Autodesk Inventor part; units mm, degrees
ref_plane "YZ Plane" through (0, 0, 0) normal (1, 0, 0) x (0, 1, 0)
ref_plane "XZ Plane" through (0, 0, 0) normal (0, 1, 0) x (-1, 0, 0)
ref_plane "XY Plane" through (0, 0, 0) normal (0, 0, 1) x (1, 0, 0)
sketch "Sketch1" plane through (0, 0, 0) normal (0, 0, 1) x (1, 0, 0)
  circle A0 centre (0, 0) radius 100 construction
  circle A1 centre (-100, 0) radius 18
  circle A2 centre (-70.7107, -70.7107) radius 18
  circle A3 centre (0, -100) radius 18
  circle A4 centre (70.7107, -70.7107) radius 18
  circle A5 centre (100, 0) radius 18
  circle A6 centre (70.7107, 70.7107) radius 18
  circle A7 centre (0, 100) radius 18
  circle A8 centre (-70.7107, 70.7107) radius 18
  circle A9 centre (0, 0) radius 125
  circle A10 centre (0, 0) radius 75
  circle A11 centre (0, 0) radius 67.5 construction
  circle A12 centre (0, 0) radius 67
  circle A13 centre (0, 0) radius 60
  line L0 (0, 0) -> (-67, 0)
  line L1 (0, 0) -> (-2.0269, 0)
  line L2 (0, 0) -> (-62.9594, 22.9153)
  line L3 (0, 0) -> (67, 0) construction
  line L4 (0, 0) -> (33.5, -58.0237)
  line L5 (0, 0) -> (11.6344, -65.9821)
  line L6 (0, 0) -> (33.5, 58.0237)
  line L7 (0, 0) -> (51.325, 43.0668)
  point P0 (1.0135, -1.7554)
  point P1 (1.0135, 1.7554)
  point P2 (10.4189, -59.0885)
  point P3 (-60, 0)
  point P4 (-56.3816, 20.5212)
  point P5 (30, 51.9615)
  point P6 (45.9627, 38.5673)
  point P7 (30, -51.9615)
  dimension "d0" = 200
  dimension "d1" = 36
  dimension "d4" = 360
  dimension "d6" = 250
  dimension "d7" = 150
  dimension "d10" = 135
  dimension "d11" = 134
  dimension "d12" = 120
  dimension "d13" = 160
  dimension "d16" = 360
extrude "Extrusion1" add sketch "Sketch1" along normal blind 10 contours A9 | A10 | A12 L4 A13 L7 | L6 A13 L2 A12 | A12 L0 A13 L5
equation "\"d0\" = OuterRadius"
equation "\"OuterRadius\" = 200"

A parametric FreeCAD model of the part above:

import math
import FreeCAD as App
import Part
import Sketcher
Q = App.Units.Quantity

doc = App.newDocument("Part")
body = doc.addObject("PartDesign::Body", "Body")

# Sketch on XY plane
sketch1 = doc.addObject("Sketcher::SketchObject", "Sketch")
body.addObject(sketch1)
sketch1.AttachmentSupport = (doc.XY_Plane, [""])
sketch1.MapMode = "FlatFace"
sketch1.addGeometry([
    Part.Circle(App.Vector(0, 0, 0), App.Vector(0, 0, 1), 125),  # 0
    Part.Circle(App.Vector(-71, -71, 0), App.Vector(0, 0, 1), 18),  # 1
    Part.Circle(App.Vector(0, -100, 0), App.Vector(0, 0, 1), 18),  # 2
    Part.Circle(App.Vector(71, -71, 0), App.Vector(0, 0, 1), 18),  # 3
    Part.Circle(App.Vector(-100, 0, 0), App.Vector(0, 0, 1), 18),  # 4
    Part.Circle(App.Vector(-71, 71, 0), App.Vector(0, 0, 1), 18),  # 5
    Part.Circle(App.Vector(100, 0, 0), App.Vector(0, 0, 1), 18),  # 6
    Part.Circle(App.Vector(0, 100, 0), App.Vector(0, 0, 1), 18),  # 7
    Part.Circle(App.Vector(71, 71, 0), App.Vector(0, 0, 1), 18),  # 8
    Part.ArcOfCircle(Part.Circle(App.Vector(0, 0, 0), App.Vector(0, 0, 1), 67), math.radians(40), math.radians(60)),  # 9
    Part.LineSegment(App.Vector(51, 43, 0), App.Vector(46, 39, 0)),  # 10
    Part.ArcOfCircle(Part.Circle(App.Vector(0, 0, 0), App.Vector(0, 0, 1), 60), math.radians(-60), math.radians(40)),  # 11
    Part.LineSegment(App.Vector(30, -52, 0), App.Vector(34, -58, 0)),  # 12
    Part.ArcOfCircle(Part.Circle(App.Vector(0, 0, 0), App.Vector(0, 0, 1), 67), math.radians(-80), math.radians(-60)),  # 13
    Part.LineSegment(App.Vector(12, -66, 0), App.Vector(10, -59, 0)),  # 14
    Part.ArcOfCircle(Part.Circle(App.Vector(0, 0, 0), App.Vector(0, 0, 1), 60), math.radians(180), math.radians(280)),  # 15
    Part.LineSegment(App.Vector(-60, 0, 0), App.Vector(-67, 0, 0)),  # 16
    Part.ArcOfCircle(Part.Circle(App.Vector(0, 0, 0), App.Vector(0, 0, 1), 67), math.radians(160), math.radians(180)),  # 17
    Part.LineSegment(App.Vector(-63, 23, 0), App.Vector(-56, 21, 0)),  # 18
    Part.ArcOfCircle(Part.Circle(App.Vector(0, 0, 0), App.Vector(0, 0, 1), 60), math.radians(60), math.radians(160)),  # 19
    Part.LineSegment(App.Vector(30, 52, 0), App.Vector(34, 58, 0)),  # 20
], False)
sketch1.addConstraint([
    Sketcher.Constraint("Coincident", 9, 1, 10, 1),
    Sketcher.Constraint("Coincident", 10, 2, 11, 2),
    Sketcher.Constraint("Coincident", 11, 1, 12, 1),
    Sketcher.Constraint("Coincident", 12, 2, 13, 2),
    Sketcher.Constraint("Coincident", 13, 1, 14, 1),
    Sketcher.Constraint("Coincident", 14, 2, 15, 2),
    Sketcher.Constraint("Coincident", 15, 1, 16, 1),
    Sketcher.Constraint("Coincident", 16, 2, 17, 2),
    Sketcher.Constraint("Coincident", 17, 1, 18, 1),
    Sketcher.Constraint("Coincident", 18, 2, 19, 2),
    Sketcher.Constraint("Coincident", 19, 1, 20, 1),
    Sketcher.Constraint("Coincident", 20, 2, 9, 2),
    Sketcher.Constraint("Horizontal", 16),
    Sketcher.Constraint("Coincident", 0, 3, -1, 1),
    Sketcher.Constraint("Coincident", 9, 3, -1, 1),
    Sketcher.Constraint("Coincident", 11, 3, -1, 1),
    Sketcher.Constraint("Coincident", 13, 3, -1, 1),
    Sketcher.Constraint("Coincident", 15, 3, -1, 1),
    Sketcher.Constraint("Coincident", 17, 3, -1, 1),
    Sketcher.Constraint("Coincident", 19, 3, -1, 1),
    Sketcher.Constraint("Equal", 1, 2),
    Sketcher.Constraint("Equal", 2, 3),
    Sketcher.Constraint("Equal", 3, 4),
    Sketcher.Constraint("Equal", 4, 5),
    Sketcher.Constraint("Equal", 5, 6),
    Sketcher.Constraint("Equal", 6, 7),
    Sketcher.Constraint("Equal", 7, 8),
    Sketcher.Constraint("Equal", 9, 13),
    Sketcher.Constraint("Equal", 11, 15),
    Sketcher.Constraint("Equal", 13, 17),
    Sketcher.Constraint("Equal", 15, 19),
    Sketcher.Constraint("Symmetric", 3, 3, 5, 3, -1, 1),
    Sketcher.Constraint("Symmetric", 4, 3, 6, 3, -1, 1),
    Sketcher.Constraint("Symmetric", 2, 3, 7, 3, -1, 1),
    Sketcher.Constraint("Symmetric", 1, 3, 8, 3, -1, 1),
    Sketcher.Constraint("Symmetric", 1, 3, 3, 3, -2),
    Sketcher.Constraint("PointOnObject", 2, 3, -2),
    Sketcher.Constraint("PointOnObject", 4, 3, -1),
    Sketcher.Constraint("PointOnObject", 15, 1, -1),
    Sketcher.Constraint("Vertical", 11, 1, 19, 1),
    Sketcher.Constraint("Vertical", 12, 2, 20, 2),
    Sketcher.Constraint("Diameter", 0, 250.0),
    Sketcher.Constraint("Diameter", 1, 36.0),
    Sketcher.Constraint("Radius", 9, 67.0),
    Sketcher.Constraint("Radius", 11, 60.0),
    Sketcher.Constraint("Angle", 10, Q("-140 deg")),
    Sketcher.Constraint("Angle", 12, Q("-60 deg")),
    Sketcher.Constraint("Angle", 14, Q("100 deg")),
    Sketcher.Constraint("Angle", 18, Q("-20 deg")),
    Sketcher.Constraint("DistanceY", 2, 3, -1, 1, 100.0),
    Sketcher.Constraint("DistanceX", 4, 3, -1, 1, 100.0),
    Sketcher.Constraint("DistanceX", -1, 1, 11, 1, 30.0),
    Sketcher.Constraint("DistanceX", -1, 1, 9, 1, 51.325),
    Sketcher.Constraint("DistanceY", 9, 1, 8, 3, 27.644),
    Sketcher.Constraint("DistanceX", 10, 2, 8, 3, 24.748),
    Sketcher.Constraint("DistanceY", 14, 2, 11, 1, 7.127),
    Sketcher.Constraint("DistanceX", 17, 1, -1, 1, 62.9594),
])
pad1 = doc.addObject("PartDesign::Pad", "Pad")
body.addObject(pad1)
pad1.Profile = sketch1
pad1.Length = 10

doc.recompute()
